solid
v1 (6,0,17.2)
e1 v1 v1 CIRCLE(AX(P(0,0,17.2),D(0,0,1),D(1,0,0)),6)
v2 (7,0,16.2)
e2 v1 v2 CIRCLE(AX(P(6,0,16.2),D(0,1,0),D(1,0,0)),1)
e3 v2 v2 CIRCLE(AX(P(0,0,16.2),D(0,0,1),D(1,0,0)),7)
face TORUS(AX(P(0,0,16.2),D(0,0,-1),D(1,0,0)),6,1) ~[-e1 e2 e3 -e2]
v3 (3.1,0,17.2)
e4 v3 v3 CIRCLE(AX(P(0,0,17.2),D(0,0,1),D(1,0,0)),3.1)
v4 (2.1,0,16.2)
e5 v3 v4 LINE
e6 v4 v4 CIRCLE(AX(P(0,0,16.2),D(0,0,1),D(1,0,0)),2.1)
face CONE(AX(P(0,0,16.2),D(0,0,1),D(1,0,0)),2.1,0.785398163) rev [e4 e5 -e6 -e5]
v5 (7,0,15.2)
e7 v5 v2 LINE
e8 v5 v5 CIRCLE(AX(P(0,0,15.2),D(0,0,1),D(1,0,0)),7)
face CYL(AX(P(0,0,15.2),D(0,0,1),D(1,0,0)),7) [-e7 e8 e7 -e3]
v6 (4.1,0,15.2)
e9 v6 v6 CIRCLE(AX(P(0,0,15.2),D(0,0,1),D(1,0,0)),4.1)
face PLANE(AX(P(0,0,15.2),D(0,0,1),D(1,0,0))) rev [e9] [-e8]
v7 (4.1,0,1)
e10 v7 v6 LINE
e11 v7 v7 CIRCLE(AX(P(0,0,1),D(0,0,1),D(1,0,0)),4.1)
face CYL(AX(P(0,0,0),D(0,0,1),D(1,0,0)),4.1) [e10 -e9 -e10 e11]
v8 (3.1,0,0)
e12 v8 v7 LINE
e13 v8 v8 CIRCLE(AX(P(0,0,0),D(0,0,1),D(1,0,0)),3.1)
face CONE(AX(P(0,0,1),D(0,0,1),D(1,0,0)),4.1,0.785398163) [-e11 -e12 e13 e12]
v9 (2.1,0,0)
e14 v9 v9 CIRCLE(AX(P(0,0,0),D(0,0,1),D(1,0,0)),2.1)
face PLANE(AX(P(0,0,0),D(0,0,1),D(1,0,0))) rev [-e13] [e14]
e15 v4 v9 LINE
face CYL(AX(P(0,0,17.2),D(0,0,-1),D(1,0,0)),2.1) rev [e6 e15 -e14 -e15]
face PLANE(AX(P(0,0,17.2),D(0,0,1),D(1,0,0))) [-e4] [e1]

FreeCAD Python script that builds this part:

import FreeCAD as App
import Part
import Sketcher
from FreeCAD import Vector


def edges_at(feature, points):
    """Names of the edges that pass closest to the given points."""
    edges = feature.Shape.Edges
    near = lambda p: min(range(len(edges)), key=lambda i: edges[i].distToShape(Part.Vertex(*p))[0])
    return sorted({f"Edge{near(p) + 1}" for p in points})


def add_polygon(sketch, points):
    """Adds a closed chain of lines whose ends are joined by coincident constraints."""
    first, n = sketch.GeometryCount, len(points)
    for a, b in zip(points, points[1:] + points[:1]):
        sketch.addGeometry(Part.LineSegment(App.Vector(*a, 0), App.Vector(*b, 0)), False)
    for i in range(n):
        sketch.addConstraint(Sketcher.Constraint("Coincident", first + i, 2, first + (i + 1) % n, 1))

doc = App.newDocument("Part")
body = doc.addObject("PartDesign::Body", "Body")

# Sketch on XZ plane
sketch1 = body.newObject("Sketcher::SketchObject", "Sketch")
sketch1.AttachmentSupport = (doc.getObject("XZ_Plane"), [""])
sketch1.MapMode = "FlatFace"
add_polygon(sketch1, [(7, 17.2), (2.1, 17.2), (2.1, 0), (4.1, 0), (4.1, 15.2), (7, 15.2)])  # lines 0-5
sketch1.addConstraint([
    Sketcher.Constraint("Horizontal", 0),
    Sketcher.Constraint("Vertical", 1),
    Sketcher.Constraint("Horizontal", 2),
    Sketcher.Constraint("Vertical", 3),
    Sketcher.Constraint("Horizontal", 4),
    Sketcher.Constraint("Vertical", 5),
    Sketcher.Constraint("PointOnObject", 1, 2, -1),
    Sketcher.Constraint("Equal", 2, 5),
    Sketcher.Constraint("DistanceX", 2, 1, 2, 2, 2.0),
    Sketcher.Constraint("DistanceX", 0, 2, 0, 1, 4.9),
    Sketcher.Constraint("DistanceY", 1, 2, 1, 1, 17.2),
    Sketcher.Constraint("DistanceX", -1, 1, 4, 2, 7.0),
])
revolution = body.newObject("PartDesign::Revolution", "Revolution")
revolution.Profile = sketch1
revolution.ReferenceAxis = (sketch1, ["V_Axis"])
revolution.Angle = 360
doc.recompute()

chamfer = body.newObject("PartDesign::Chamfer", "Chamfer")
chamfer.Base = (revolution, edges_at(revolution, [(-2.1, 0, 17.2), (-4.1, 0, 0)]))
chamfer.Size = 1
doc.recompute()

fillet = body.newObject("PartDesign::Fillet", "Fillet")
fillet.Base = (chamfer, edges_at(chamfer, [(-7, 0, 17.2)]))
fillet.Radius = 1

doc.recompute()
